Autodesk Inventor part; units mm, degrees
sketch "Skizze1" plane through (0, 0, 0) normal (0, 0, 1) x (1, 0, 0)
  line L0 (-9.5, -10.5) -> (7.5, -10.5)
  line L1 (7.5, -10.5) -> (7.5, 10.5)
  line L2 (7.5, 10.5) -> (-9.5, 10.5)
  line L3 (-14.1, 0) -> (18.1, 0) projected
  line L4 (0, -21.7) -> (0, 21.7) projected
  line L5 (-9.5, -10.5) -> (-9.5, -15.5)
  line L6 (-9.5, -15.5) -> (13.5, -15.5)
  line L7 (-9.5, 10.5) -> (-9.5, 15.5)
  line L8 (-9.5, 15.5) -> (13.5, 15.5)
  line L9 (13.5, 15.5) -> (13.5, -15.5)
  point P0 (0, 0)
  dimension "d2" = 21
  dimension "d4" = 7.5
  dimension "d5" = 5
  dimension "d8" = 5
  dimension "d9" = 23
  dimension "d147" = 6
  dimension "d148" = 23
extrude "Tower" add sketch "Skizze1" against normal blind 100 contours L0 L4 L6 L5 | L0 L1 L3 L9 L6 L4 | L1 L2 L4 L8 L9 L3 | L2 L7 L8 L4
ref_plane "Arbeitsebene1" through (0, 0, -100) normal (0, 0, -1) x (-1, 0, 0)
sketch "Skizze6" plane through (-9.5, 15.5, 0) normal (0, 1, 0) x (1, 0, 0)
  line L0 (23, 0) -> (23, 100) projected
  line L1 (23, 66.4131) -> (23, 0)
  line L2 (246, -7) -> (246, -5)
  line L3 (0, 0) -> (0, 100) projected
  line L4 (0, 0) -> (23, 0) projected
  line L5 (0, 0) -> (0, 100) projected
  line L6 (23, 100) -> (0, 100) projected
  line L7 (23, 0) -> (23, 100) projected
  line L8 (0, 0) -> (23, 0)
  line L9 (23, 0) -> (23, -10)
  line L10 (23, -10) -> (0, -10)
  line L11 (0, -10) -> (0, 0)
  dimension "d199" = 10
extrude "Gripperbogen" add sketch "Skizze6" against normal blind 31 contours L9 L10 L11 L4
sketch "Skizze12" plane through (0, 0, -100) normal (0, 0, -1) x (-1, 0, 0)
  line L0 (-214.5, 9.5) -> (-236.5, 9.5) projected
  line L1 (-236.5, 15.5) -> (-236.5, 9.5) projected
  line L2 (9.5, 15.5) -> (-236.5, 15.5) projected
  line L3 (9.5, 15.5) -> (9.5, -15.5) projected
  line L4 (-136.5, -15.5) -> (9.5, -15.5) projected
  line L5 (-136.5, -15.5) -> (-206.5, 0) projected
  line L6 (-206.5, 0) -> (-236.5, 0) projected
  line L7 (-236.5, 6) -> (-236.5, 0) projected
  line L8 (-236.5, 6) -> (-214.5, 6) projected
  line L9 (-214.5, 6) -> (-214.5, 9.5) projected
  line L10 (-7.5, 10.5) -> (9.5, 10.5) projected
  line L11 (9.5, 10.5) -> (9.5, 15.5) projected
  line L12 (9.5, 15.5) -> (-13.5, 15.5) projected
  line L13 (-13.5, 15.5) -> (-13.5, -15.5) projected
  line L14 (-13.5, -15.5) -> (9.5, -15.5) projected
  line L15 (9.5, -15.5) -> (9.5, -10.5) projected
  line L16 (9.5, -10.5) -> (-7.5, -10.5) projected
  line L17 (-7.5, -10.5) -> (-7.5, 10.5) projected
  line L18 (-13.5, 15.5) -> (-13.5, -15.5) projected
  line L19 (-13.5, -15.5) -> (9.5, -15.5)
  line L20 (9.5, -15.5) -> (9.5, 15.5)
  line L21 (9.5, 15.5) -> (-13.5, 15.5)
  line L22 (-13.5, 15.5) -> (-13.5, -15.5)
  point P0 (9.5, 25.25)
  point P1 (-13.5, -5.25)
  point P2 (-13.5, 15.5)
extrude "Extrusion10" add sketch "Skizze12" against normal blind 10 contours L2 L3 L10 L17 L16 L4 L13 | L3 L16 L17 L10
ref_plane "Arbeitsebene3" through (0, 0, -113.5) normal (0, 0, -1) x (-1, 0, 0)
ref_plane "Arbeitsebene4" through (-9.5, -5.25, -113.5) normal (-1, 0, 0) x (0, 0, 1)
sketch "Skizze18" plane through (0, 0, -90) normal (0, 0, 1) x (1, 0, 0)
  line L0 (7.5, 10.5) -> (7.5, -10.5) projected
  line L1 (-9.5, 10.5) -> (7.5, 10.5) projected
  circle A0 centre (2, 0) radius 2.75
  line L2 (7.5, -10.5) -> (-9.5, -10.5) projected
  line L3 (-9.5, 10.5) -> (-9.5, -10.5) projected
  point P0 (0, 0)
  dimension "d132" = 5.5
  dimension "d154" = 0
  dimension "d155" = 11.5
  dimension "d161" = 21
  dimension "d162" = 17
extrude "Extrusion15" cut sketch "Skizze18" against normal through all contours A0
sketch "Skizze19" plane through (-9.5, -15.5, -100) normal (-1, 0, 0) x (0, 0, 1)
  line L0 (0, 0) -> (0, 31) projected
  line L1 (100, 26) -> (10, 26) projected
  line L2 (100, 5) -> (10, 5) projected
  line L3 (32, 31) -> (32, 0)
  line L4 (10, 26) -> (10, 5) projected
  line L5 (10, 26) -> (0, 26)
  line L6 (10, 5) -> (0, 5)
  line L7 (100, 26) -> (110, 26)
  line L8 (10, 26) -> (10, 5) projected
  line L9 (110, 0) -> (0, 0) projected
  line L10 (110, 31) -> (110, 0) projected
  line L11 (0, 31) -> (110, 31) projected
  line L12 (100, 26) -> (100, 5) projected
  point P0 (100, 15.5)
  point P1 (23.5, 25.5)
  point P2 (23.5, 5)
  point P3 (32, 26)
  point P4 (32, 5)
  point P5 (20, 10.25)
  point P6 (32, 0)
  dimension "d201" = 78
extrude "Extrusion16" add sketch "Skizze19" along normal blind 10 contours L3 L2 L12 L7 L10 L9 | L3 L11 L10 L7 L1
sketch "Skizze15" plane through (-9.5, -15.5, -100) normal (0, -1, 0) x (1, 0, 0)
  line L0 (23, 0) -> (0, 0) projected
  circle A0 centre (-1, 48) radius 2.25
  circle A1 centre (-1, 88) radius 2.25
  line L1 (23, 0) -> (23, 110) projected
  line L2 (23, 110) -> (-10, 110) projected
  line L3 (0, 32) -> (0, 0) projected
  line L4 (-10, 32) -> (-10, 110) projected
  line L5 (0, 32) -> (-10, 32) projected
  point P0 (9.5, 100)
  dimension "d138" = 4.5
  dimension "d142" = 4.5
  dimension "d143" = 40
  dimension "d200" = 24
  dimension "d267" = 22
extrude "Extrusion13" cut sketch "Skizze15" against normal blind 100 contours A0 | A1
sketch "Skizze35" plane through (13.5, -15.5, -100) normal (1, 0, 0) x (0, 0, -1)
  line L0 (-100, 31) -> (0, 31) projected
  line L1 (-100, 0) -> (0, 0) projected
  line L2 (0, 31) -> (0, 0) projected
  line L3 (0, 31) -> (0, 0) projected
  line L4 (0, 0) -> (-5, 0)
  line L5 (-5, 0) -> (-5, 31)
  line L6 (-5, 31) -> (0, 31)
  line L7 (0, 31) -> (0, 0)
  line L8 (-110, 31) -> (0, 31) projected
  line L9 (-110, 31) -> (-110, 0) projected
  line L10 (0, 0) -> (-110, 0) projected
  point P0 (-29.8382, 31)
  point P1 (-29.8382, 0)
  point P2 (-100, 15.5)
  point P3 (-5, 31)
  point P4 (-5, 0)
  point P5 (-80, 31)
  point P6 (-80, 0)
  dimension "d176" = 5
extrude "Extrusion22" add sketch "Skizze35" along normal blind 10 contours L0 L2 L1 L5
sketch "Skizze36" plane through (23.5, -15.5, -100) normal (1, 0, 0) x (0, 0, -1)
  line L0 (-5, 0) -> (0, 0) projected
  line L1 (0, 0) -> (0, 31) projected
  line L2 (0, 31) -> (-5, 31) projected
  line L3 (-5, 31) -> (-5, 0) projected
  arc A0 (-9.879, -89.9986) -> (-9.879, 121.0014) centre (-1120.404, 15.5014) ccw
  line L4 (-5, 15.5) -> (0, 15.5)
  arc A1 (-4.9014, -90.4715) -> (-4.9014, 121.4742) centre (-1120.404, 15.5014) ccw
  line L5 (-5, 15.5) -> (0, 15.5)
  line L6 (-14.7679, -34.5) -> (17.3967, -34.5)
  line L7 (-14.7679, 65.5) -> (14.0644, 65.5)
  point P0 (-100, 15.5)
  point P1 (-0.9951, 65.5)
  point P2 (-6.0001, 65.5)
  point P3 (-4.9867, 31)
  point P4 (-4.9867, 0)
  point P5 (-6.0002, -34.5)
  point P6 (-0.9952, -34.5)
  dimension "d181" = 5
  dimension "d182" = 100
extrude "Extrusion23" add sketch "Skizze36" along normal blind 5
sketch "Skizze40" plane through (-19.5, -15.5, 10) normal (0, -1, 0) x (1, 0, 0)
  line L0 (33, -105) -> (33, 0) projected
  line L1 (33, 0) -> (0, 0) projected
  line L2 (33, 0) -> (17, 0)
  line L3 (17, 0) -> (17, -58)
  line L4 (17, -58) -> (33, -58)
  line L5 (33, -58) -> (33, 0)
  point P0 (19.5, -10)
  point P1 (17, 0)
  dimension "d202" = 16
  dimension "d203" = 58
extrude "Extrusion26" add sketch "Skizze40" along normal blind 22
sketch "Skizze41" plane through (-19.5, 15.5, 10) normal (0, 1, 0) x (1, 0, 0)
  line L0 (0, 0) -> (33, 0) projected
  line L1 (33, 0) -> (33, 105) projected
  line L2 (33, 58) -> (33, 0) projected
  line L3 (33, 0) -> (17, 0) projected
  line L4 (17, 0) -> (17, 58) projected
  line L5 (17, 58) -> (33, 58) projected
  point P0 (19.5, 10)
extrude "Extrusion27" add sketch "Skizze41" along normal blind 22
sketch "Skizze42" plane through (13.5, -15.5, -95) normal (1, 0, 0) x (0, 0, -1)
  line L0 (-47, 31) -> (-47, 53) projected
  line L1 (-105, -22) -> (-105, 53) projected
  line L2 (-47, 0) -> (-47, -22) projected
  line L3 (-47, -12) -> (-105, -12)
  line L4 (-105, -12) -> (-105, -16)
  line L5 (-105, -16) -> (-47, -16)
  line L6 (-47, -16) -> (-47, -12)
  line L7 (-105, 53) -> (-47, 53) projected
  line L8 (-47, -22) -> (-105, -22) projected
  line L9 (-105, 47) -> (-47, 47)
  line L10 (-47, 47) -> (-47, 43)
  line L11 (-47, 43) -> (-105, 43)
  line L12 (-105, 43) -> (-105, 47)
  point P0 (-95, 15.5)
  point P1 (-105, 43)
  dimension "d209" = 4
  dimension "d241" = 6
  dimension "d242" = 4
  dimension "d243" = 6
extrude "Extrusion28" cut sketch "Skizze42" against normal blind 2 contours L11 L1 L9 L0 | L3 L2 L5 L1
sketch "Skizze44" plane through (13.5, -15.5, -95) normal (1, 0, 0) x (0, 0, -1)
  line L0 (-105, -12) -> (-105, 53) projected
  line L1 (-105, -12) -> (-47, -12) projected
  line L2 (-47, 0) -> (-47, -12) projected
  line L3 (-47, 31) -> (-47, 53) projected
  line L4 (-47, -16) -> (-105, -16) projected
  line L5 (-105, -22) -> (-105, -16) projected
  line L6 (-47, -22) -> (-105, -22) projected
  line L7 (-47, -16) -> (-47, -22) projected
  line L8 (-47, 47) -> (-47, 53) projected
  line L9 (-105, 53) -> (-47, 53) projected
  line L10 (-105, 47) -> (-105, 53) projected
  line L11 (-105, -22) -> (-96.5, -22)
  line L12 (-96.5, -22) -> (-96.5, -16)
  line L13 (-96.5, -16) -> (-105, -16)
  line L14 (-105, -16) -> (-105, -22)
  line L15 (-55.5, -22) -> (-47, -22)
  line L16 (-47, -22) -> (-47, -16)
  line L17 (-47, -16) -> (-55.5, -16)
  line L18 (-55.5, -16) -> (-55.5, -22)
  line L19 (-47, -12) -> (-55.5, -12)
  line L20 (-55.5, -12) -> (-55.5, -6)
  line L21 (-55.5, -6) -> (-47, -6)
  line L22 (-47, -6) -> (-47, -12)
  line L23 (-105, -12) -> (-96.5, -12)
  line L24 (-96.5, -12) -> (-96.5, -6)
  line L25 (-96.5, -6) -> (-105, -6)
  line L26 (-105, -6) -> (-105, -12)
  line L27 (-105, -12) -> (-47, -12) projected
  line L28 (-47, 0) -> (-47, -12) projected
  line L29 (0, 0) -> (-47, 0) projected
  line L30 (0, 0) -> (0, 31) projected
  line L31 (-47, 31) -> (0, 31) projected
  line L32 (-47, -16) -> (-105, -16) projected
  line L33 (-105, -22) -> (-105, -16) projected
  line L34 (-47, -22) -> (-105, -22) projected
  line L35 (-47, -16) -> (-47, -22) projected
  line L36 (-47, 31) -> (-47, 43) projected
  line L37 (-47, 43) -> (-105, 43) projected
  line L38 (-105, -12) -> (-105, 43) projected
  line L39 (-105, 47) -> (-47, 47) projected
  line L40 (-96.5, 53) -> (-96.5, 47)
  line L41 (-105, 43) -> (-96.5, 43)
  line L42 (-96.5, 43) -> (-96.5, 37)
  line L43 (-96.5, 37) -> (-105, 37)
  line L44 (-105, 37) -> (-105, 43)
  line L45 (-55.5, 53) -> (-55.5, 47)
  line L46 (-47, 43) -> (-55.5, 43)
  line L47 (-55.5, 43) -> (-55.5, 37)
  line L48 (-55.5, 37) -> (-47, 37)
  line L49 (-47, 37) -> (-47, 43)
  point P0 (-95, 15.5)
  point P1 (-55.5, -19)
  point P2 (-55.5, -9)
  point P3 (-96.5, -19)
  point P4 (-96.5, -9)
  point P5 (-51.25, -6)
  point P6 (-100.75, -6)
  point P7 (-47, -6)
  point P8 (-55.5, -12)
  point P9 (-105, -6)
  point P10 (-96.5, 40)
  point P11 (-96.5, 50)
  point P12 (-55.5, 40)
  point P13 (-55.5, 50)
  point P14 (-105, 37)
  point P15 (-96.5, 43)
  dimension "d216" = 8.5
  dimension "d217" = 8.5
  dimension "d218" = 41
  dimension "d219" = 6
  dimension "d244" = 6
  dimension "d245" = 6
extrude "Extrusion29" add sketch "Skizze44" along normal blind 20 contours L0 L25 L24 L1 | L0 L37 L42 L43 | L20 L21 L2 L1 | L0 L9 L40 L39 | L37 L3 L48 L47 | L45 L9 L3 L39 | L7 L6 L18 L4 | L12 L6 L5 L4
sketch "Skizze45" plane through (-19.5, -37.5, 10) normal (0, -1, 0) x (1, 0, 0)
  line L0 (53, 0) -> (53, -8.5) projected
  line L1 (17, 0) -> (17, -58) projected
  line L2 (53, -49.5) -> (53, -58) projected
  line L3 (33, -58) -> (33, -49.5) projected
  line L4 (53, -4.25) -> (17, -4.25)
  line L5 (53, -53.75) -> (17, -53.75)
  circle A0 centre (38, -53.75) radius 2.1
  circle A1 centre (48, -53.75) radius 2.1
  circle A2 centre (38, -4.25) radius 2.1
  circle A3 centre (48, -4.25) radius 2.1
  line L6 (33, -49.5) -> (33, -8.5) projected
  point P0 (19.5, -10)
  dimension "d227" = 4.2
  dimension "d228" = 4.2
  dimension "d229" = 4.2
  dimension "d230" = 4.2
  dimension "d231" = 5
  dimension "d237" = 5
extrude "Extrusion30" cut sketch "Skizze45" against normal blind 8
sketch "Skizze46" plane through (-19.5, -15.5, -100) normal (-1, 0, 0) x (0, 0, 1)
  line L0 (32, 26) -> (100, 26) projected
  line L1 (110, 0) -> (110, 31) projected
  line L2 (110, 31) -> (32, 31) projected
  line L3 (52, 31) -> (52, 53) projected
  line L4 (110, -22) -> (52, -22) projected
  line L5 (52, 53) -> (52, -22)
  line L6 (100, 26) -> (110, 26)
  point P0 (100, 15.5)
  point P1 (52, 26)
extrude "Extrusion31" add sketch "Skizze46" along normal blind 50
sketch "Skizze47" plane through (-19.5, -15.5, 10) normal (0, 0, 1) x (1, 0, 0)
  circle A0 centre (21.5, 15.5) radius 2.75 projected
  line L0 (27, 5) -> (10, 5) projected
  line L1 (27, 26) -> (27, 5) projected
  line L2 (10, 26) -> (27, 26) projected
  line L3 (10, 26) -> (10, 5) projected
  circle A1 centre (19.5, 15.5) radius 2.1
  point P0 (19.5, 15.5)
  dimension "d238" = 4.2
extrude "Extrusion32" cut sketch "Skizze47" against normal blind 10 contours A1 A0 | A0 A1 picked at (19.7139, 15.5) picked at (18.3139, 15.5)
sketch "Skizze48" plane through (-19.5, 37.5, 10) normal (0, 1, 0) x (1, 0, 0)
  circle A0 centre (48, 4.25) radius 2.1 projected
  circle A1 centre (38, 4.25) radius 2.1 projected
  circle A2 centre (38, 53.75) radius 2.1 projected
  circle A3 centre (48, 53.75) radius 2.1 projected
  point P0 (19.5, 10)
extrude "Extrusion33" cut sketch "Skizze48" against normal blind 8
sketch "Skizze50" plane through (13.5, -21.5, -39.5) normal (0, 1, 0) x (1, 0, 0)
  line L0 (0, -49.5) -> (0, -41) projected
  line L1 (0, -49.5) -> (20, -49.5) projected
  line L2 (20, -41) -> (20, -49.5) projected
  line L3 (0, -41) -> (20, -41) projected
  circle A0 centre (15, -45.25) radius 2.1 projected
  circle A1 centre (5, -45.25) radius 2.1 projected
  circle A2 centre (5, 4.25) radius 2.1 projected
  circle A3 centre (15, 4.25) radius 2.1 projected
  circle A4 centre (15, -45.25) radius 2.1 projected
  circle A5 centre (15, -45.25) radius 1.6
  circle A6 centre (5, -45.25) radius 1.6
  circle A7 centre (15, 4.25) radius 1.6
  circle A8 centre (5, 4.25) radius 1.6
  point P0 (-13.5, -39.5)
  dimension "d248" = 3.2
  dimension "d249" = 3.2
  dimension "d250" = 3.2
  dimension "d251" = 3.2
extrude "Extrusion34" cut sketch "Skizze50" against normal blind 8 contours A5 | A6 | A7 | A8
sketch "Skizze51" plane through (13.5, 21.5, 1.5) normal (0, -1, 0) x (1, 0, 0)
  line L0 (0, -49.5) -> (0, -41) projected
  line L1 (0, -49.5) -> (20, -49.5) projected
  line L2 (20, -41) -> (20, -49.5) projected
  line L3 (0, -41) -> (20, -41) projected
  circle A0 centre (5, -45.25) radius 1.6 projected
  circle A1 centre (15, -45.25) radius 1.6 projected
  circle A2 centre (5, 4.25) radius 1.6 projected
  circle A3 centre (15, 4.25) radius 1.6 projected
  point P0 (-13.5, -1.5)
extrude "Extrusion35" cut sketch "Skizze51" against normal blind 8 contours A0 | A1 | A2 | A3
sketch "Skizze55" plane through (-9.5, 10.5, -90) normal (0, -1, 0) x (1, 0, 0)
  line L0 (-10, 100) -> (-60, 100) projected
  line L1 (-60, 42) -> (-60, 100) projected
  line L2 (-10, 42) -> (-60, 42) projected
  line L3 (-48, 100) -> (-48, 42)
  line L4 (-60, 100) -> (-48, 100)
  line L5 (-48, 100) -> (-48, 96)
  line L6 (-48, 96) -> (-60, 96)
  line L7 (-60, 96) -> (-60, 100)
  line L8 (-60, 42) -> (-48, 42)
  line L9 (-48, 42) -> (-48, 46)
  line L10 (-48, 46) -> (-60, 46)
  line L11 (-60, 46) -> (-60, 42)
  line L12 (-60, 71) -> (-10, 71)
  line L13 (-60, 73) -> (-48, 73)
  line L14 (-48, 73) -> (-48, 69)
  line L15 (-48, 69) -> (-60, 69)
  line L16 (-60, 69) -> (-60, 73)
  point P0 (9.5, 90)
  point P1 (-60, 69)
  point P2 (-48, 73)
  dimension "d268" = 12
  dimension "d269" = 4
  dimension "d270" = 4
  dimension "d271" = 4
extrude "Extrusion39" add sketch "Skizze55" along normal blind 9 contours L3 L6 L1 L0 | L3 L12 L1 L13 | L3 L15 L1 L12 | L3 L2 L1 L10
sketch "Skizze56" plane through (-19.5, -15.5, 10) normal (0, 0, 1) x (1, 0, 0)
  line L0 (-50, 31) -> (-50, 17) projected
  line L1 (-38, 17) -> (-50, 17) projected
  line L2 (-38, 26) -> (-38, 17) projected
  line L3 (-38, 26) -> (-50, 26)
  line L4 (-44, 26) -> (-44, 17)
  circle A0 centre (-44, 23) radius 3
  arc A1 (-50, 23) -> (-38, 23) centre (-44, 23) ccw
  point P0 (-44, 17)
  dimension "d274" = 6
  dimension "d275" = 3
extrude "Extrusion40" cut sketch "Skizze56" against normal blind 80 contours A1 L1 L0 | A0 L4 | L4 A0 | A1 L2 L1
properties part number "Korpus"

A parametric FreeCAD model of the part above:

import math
import FreeCAD as App
import Part
import Sketcher

V = App.Vector
Q = App.Units.Quantity

doc = App.newDocument("Part")
body = doc.addObject("PartDesign::Body", "Body")

# Sketch on XY plane
sketch1 = doc.addObject("Sketcher::SketchObject", "Sketch")
body.addObject(sketch1)
sketch1.AttachmentSupport = (doc.XY_Plane, [""])
sketch1.MapMode = "FlatFace"
sketch1.addGeometry([
    Part.LineSegment(V(-10, -10, 0), V(-10, -16, 0)),  # 0
    Part.LineSegment(V(-10, -16, 0), V(14, -16, 0)),  # 1
    Part.LineSegment(V(14, -16, 0), V(14, 16, 0)),  # 2
    Part.LineSegment(V(14, 16, 0), V(-10, 16, 0)),  # 3
    Part.LineSegment(V(-10, 16, 0), V(-10, 10, 0)),  # 4
    Part.LineSegment(V(-10, 10, 0), V(8, 10, 0)),  # 5
    Part.LineSegment(V(8, 10, 0), V(8, -10, 0)),  # 6
    Part.LineSegment(V(8, -10, 0), V(-10, -10, 0)),  # 7
], False)
sketch1.addConstraint([
    Sketcher.Constraint("Coincident", 0, 2, 1, 1),
    Sketcher.Constraint("Coincident", 1, 2, 2, 1),
    Sketcher.Constraint("Coincident", 2, 2, 3, 1),
    Sketcher.Constraint("Coincident", 3, 2, 4, 1),
    Sketcher.Constraint("Coincident", 4, 2, 5, 1),
    Sketcher.Constraint("Coincident", 5, 2, 6, 1),
    Sketcher.Constraint("Coincident", 6, 2, 7, 1),
    Sketcher.Constraint("Coincident", 7, 2, 0, 1),
    Sketcher.Constraint("Vertical", 0),
    Sketcher.Constraint("Horizontal", 1),
    Sketcher.Constraint("Vertical", 2),
    Sketcher.Constraint("Horizontal", 3),
    Sketcher.Constraint("Vertical", 4),
    Sketcher.Constraint("Horizontal", 5),
    Sketcher.Constraint("Vertical", 6),
    Sketcher.Constraint("Horizontal", 7),
    Sketcher.Constraint("Symmetric", 0, 2, 3, 2, -1),
    Sketcher.Constraint("Equal", 0, 4),
    Sketcher.Constraint("DistanceX", 1, 1, 1, 2, Q("23 mm")),
    Sketcher.Constraint("DistanceY", 0, 2, 0, 1, Q("5 mm")),
    Sketcher.Constraint("DistanceY", 6, 2, 6, 1, Q("21 mm")),
    Sketcher.Constraint("DistanceX", 5, 2, 2, 2, Q("6 mm")),
    Sketcher.Constraint("DistanceX", -1, 1, 5, 2, Q("7.5 mm")),
])
pad1 = doc.addObject("PartDesign::Pad", "Pad")
body.addObject(pad1)
pad1.Profile = sketch1
pad1.Length = 100
pad1.Reversed = True

# Sketch on XZ plane
sketch2 = doc.addObject("Sketcher::SketchObject", "Sketch001")
body.addObject(sketch2)
sketch2.AttachmentSupport = (doc.XZ_Plane, [""])
sketch2.MapMode = "FlatFace"
sketch2.AttachmentOffset = App.Placement(V(0, 0, -15.5), App.Rotation())
sketch2.addGeometry([
    Part.LineSegment(V(14, 10, 0), V(14, 0, 0)),
    Part.LineSegment(V(14, 0, 0), V(-10, 0, 0)),
    Part.LineSegment(V(-10, 0, 0), V(-10, 10, 0)),
    Part.LineSegment(V(-10, 10, 0), V(14, 10, 0)),
], False)
sketch2.addConstraint([
    Sketcher.Constraint("Coincident", 0, 2, 1, 1),
    Sketcher.Constraint("Coincident", 1, 2, 2, 1),
    Sketcher.Constraint("Coincident", 2, 2, 3, 1),
    Sketcher.Constraint("Coincident", 3, 2, 0, 1),
    Sketcher.Constraint("Vertical", 0),
    Sketcher.Constraint("Horizontal", 1),
    Sketcher.Constraint("Vertical", 2),
    Sketcher.Constraint("Horizontal", 3),
    Sketcher.Constraint("PointOnObject", 0, 2, -1),
    Sketcher.Constraint("DistanceY", 0, 2, 0, 1, Q("10 mm")),
    Sketcher.Constraint("DistanceX", 1, 2, 1, 1, Q("23 mm")),
    Sketcher.Constraint("DistanceX", -1, 1, 0, 2, Q("13.5 mm")),
])
pad2 = doc.addObject("PartDesign::Pad", "Pad001")
body.addObject(pad2)
pad2.Profile = sketch2
pad2.Length = 31

# Sketch on XY plane
sketch3 = doc.addObject("Sketcher::SketchObject", "Sketch002")
body.addObject(sketch3)
sketch3.AttachmentSupport = (doc.XY_Plane, [""])
sketch3.MapMode = "FlatFace"
sketch3.AttachmentOffset = App.Placement(V(0, 0, -100), App.Rotation())
sketch3.addGeometry([
    Part.LineSegment(V(-10, 16, 0), V(14, 16, 0)),
    Part.LineSegment(V(14, 16, 0), V(14, -16, 0)),
    Part.LineSegment(V(14, -16, 0), V(-10, -16, 0)),
    Part.LineSegment(V(-10, -16, 0), V(-10, 16, 0)),
], False)
sketch3.addConstraint([
    Sketcher.Constraint("Coincident", 0, 2, 1, 1),
    Sketcher.Constraint("Coincident", 1, 2, 2, 1),
    Sketcher.Constraint("Coincident", 2, 2, 3, 1),
    Sketcher.Constraint("Coincident", 3, 2, 0, 1),
    Sketcher.Constraint("Horizontal", 0),
    Sketcher.Constraint("Vertical", 1),
    Sketcher.Constraint("Horizontal", 2),
    Sketcher.Constraint("Vertical", 3),
    Sketcher.Constraint("DistanceX", 0, 1, 0, 2, Q("23 mm")),
    Sketcher.Constraint("DistanceY", 1, 2, 1, 1, Q("31 mm")),
    Sketcher.Constraint("DistanceX", -1, 1, 0, 2, Q("13.5 mm")),
    Sketcher.Constraint("DistanceY", -1, 1, 0, 2, Q("15.5 mm")),
])
pad3 = doc.addObject("PartDesign::Pad", "Pad002")
body.addObject(pad3)
pad3.Profile = sketch3
pad3.Length = 10

# Sketch on XY plane
sketch4 = doc.addObject("Sketcher::SketchObject", "Sketch003")
body.addObject(sketch4)
sketch4.AttachmentSupport = (doc.XY_Plane, [""])
sketch4.MapMode = "FlatFace"
sketch4.AttachmentOffset = App.Placement(V(0, 0, -90), App.Rotation())
sketch4.addGeometry(Part.Circle(V(2, 0, 0), V(0, 0, 1), 2.8), False)
sketch4.addConstraint([
    Sketcher.Constraint("PointOnObject", 0, 3, -1),
    Sketcher.Constraint("Diameter", 0, Q("5.5 mm")),
    Sketcher.Constraint("DistanceX", -1, 1, 0, 3, Q("2 mm")),
])
pocket1 = doc.addObject("PartDesign::Pocket", "Pocket")
body.addObject(pocket1)
pocket1.Profile = sketch4
pocket1.Type = "ThroughAll"

# Sketch on YZ plane
sketch5 = doc.addObject("Sketcher::SketchObject", "Sketch004")
body.addObject(sketch5)
sketch5.AttachmentSupport = (doc.YZ_Plane, [""])
sketch5.MapMode = "FlatFace"
sketch5.AttachmentOffset = App.Placement(V(0, 0, -9.5), App.Rotation())
sketch5.addGeometry([
    Part.LineSegment(V(-10, -68, 0), V(-16, -68, 0)),  # 0
    Part.LineSegment(V(-16, -68, 0), V(-16, 10, 0)),  # 1
    Part.LineSegment(V(-16, 10, 0), V(16, 10, 0)),  # 2
    Part.LineSegment(V(16, 10, 0), V(16, -68, 0)),  # 3
    Part.LineSegment(V(16, -68, 0), V(10, -68, 0)),  # 4
    Part.LineSegment(V(10, -68, 0), V(10, 0, 0)),  # 5
    Part.LineSegment(V(10, 0, 0), V(-10, 0, 0)),  # 6
    Part.LineSegment(V(-10, 0, 0), V(-10, -68, 0)),  # 7
], False)
sketch5.addConstraint([
    Sketcher.Constraint("Coincident", 0, 2, 1, 1),
    Sketcher.Constraint("Coincident", 1, 2, 2, 1),
    Sketcher.Constraint("Coincident", 2, 2, 3, 1),
    Sketcher.Constraint("Coincident", 3, 2, 4, 1),
    Sketcher.Constraint("Coincident", 4, 2, 5, 1),
    Sketcher.Constraint("Coincident", 5, 2, 6, 1),
    Sketcher.Constraint("Coincident", 6, 2, 7, 1),
    Sketcher.Constraint("Coincident", 7, 2, 0, 1),
    Sketcher.Constraint("Horizontal", 0),
    Sketcher.Constraint("Vertical", 1),
    Sketcher.Constraint("Horizontal", 2),
    Sketcher.Constraint("Vertical", 3),
    Sketcher.Constraint("Horizontal", 4),
    Sketcher.Constraint("Vertical", 5),
    Sketcher.Constraint("Horizontal", 6),
    Sketcher.Constraint("Vertical", 7),
    Sketcher.Constraint("Symmetric", 5, 2, 6, 2, -1, 1),
    Sketcher.Constraint("Symmetric", 0, 2, 3, 2, -2),
    Sketcher.Constraint("DistanceY", 1, 1, 1, 2, Q("78 mm")),
    Sketcher.Constraint("DistanceX", 0, 2, 0, 1, Q("5 mm")),
    Sketcher.Constraint("DistanceX", 2, 1, 2, 2, Q("31 mm")),
    Sketcher.Constraint("DistanceY", 5, 1, 5, 2, Q("68 mm")),
])
pad4 = doc.addObject("PartDesign::Pad", "Pad003")
body.addObject(pad4)
pad4.Profile = sketch5
pad4.Length = 10
pad4.Reversed = True

# Sketch on XZ plane
sketch6 = doc.addObject("Sketcher::SketchObject", "Sketch005")
body.addObject(sketch6)
sketch6.AttachmentSupport = (doc.XZ_Plane, [""])
sketch6.MapMode = "FlatFace"
sketch6.AttachmentOffset = App.Placement(V(0, 0, 15.5), App.Rotation())
sketch6.addGeometry([
    Part.Circle(V(-10.5, -52, 0), V(0, 0, 1), 2.2),
    Part.Circle(V(-10.5, -12, 0), V(0, 0, 1), 2.2),
], False)
sketch6.addConstraint([
    Sketcher.Constraint("Equal", 0, 1),
    Sketcher.Constraint("Vertical", 0, 3, 1, 3),
    Sketcher.Constraint("Diameter", 0, Q("4.5 mm")),
    Sketcher.Constraint("DistanceY", 0, 3, 1, 3, Q("40 mm")),
    Sketcher.Constraint("DistanceY", 0, 3, -1, 1, Q("52 mm")),
    Sketcher.Constraint("DistanceX", 0, 3, -1, 1, Q("10.5 mm")),
])
pocket2 = doc.addObject("PartDesign::Pocket", "Pocket001")
body.addObject(pocket2)
pocket2.Profile = sketch6
pocket2.Length = 100

# Sketch on YZ plane
sketch7 = doc.addObject("Sketcher::SketchObject", "Sketch006")
body.addObject(sketch7)
sketch7.AttachmentSupport = (doc.YZ_Plane, [""])
sketch7.MapMode = "FlatFace"
sketch7.AttachmentOffset = App.Placement(V(0, 0, 13.5), App.Rotation())
sketch7.addGeometry([
    Part.LineSegment(V(16, -100, 0), V(16, -95, 0)),
    Part.LineSegment(V(16, -95, 0), V(-16, -95, 0)),
    Part.LineSegment(V(-16, -95, 0), V(-16, -100, 0)),
    Part.LineSegment(V(-16, -100, 0), V(16, -100, 0)),
], False)
sketch7.addConstraint([
    Sketcher.Constraint("Coincident", 0, 2, 1, 1),
    Sketcher.Constraint("Coincident", 1, 2, 2, 1),
    Sketcher.Constraint("Coincident", 2, 2, 3, 1),
    Sketcher.Constraint("Coincident", 3, 2, 0, 1),
    Sketcher.Constraint("Vertical", 0),
    Sketcher.Constraint("Horizontal", 1),
    Sketcher.Constraint("Vertical", 2),
    Sketcher.Constraint("Horizontal", 3),
    Sketcher.Constraint("DistanceY", 0, 1, 0, 2, Q("5 mm")),
    Sketcher.Constraint("DistanceX", 1, 2, 1, 1, Q("31 mm")),
    Sketcher.Constraint("DistanceY", 0, 2, -1, 1, Q("95 mm")),
    Sketcher.Constraint("DistanceX", -1, 1, 0, 2, Q("15.5 mm")),
])
pad5 = doc.addObject("PartDesign::Pad", "Pad004")
body.addObject(pad5)
pad5.Profile = sketch7
pad5.Length = 10

# Sketch on YZ plane
sketch8 = doc.addObject("Sketcher::SketchObject", "Sketch007")
body.addObject(sketch8)
sketch8.AttachmentSupport = (doc.YZ_Plane, [""])
sketch8.MapMode = "FlatFace"
sketch8.AttachmentOffset = App.Placement(V(0, 0, 23.5), App.Rotation())
sketch8.addGeometry([
    Part.LineSegment(V(-15.5, -95, 0), V(-15.5, -95.013, 0)),  # 0
    Part.ArcOfCircle(Part.Circle(V(0.001, 1020.404, 0), V(0, 0, 1), 1115.525), math.radians(-92.57), math.radians(-90.8)),  # 1
    Part.LineSegment(V(-50, -94, 0), V(-50, -99.005, 0)),  # 2
    Part.ArcOfCircle(Part.Circle(V(0.001, 1020.403, 0), V(0, 0, 1), 1120.524), math.radians(-92.56), math.radians(-87.44)),  # 3
    Part.LineSegment(V(50, -99.005, 0), V(50, -94, 0)),  # 4
    Part.ArcOfCircle(Part.Circle(V(0.001, 1020.404, 0), V(0, 0, 1), 1115.525), math.radians(-89.2), math.radians(-87.43)),  # 5
    Part.LineSegment(V(15.5, -95.013, 0), V(15.5, -95, 0)),  # 6
    Part.LineSegment(V(15.5, -95, 0), V(-15.5, -95, 0)),  # 7
], False)
sketch8.addConstraint([
    Sketcher.Constraint("Coincident", 0, 2, 1, 2),
    Sketcher.Constraint("Coincident", 1, 1, 2, 1),
    Sketcher.Constraint("Coincident", 2, 2, 3, 1),
    Sketcher.Constraint("Coincident", 3, 2, 4, 1),
    Sketcher.Constraint("Coincident", 4, 2, 5, 2),
    Sketcher.Constraint("Coincident", 5, 1, 6, 1),
    Sketcher.Constraint("Coincident", 6, 2, 7, 1),
    Sketcher.Constraint("Coincident", 7, 2, 0, 1),
    Sketcher.Constraint("Vertical", 0),
    Sketcher.Constraint("Vertical", 2),
    Sketcher.Constraint("Vertical", 4),
    Sketcher.Constraint("Vertical", 6),
    Sketcher.Constraint("Horizontal", 7),
    Sketcher.Constraint("Coincident", 5, 3, 1, 3),
    Sketcher.Constraint("Equal", 1, 5),
    Sketcher.Constraint("Vertical", 1, 3, 3, 3),
    Sketcher.Constraint("Equal", 0, 6),
    Sketcher.Constraint("DistanceX", 2, 2, 4, 2, Q("100 mm")),
    Sketcher.Constraint("DistanceX", 7, 2, 7, 1, Q("31 mm")),
    Sketcher.Constraint("DistanceX", 2, 2, -1, 1, Q("50 mm")),
    Sketcher.Constraint("DistanceY", 4, 2, -1, 1, Q("94 mm")),
    Sketcher.Constraint("DistanceY", 6, 2, -1, 1, Q("95 mm")),
    Sketcher.Constraint("Radius", 1, Q("1115.525 mm")),
    Sketcher.Constraint("Radius", 3, Q("1120.524 mm")),
    Sketcher.Constraint("DistanceX", 0, 2, -1, 1, Q("15.5 mm")),
    Sketcher.Constraint("DistanceY", 2, 2, 2, 1, Q("5.005 mm")),
])
pad6 = doc.addObject("PartDesign::Pad", "Pad005")
body.addObject(pad6)
pad6.Profile = sketch8
pad6.Length = 5

# Sketch on XZ plane
sketch9 = doc.addObject("Sketcher::SketchObject", "Sketch008")
body.addObject(sketch9)
sketch9.AttachmentSupport = (doc.XZ_Plane, [""])
sketch9.MapMode = "FlatFace"
sketch9.AttachmentOffset = App.Placement(V(0, 0, 15.5), App.Rotation())
sketch9.addGeometry([
    Part.LineSegment(V(-2, -48, 0), V(14, -48, 0)),
    Part.LineSegment(V(14, -48, 0), V(14, 10, 0)),
    Part.LineSegment(V(14, 10, 0), V(-2, 10, 0)),
    Part.LineSegment(V(-2, 10, 0), V(-2, -48, 0)),
], False)
sketch9.addConstraint([
    Sketcher.Constraint("Coincident", 0, 2, 1, 1),
    Sketcher.Constraint("Coincident", 1, 2, 2, 1),
    Sketcher.Constraint("Coincident", 2, 2, 3, 1),
    Sketcher.Constraint("Coincident", 3, 2, 0, 1),
    Sketcher.Constraint("Horizontal", 0),
    Sketcher.Constraint("Vertical", 1),
    Sketcher.Constraint("Horizontal", 2),
    Sketcher.Constraint("Vertical", 3),
    Sketcher.Constraint("DistanceX", 0, 1, 0, 2, Q("16 mm")),
    Sketcher.Constraint("DistanceY", 1, 1, 1, 2, Q("58 mm")),
    Sketcher.Constraint("DistanceY", 0, 2, -1, 1, Q("48 mm")),
    Sketcher.Constraint("DistanceX", -1, 1, 0, 2, Q("13.5 mm")),
])
pad7 = doc.addObject("PartDesign::Pad", "Pad006")
body.addObject(pad7)
pad7.Profile = sketch9
pad7.Length = 22

# Sketch on XZ plane
sketch10 = doc.addObject("Sketcher::SketchObject", "Sketch009")
body.addObject(sketch10)
sketch10.AttachmentSupport = (doc.XZ_Plane, [""])
sketch10.MapMode = "FlatFace"
sketch10.AttachmentOffset = App.Placement(V(0, 0, -15.5), App.Rotation())
sketch10.addGeometry([
    Part.LineSegment(V(-2, -48, 0), V(-2, 10, 0)),
    Part.LineSegment(V(-2, 10, 0), V(14, 10, 0)),
    Part.LineSegment(V(14, 10, 0), V(14, -48, 0)),
    Part.LineSegment(V(14, -48, 0), V(-2, -48, 0)),
], False)
sketch10.addConstraint([
    Sketcher.Constraint("Coincident", 0, 2, 1, 1),
    Sketcher.Constraint("Coincident", 1, 2, 2, 1),
    Sketcher.Constraint("Coincident", 2, 2, 3, 1),
    Sketcher.Constraint("Coincident", 3, 2, 0, 1),
    Sketcher.Constraint("Vertical", 0),
    Sketcher.Constraint("Horizontal", 1),
    Sketcher.Constraint("Vertical", 2),
    Sketcher.Constraint("Horizontal", 3),
    Sketcher.Constraint("DistanceX", 1, 1, 1, 2, Q("16 mm")),
    Sketcher.Constraint("DistanceY", 0, 1, 0, 2, Q("58 mm")),
    Sketcher.Constraint("DistanceY", -1, 1, 0, 2, Q("10 mm")),
    Sketcher.Constraint("DistanceX", 0, 2, -1, 1, Q("2.5 mm")),
])
pad8 = doc.addObject("PartDesign::Pad", "Pad007")
body.addObject(pad8)
pad8.Profile = sketch10
pad8.Length = 22
pad8.Reversed = True

# Sketch on YZ plane
sketch11 = doc.addObject("Sketcher::SketchObject", "Sketch010")
body.addObject(sketch11)
sketch11.AttachmentSupport = (doc.YZ_Plane, [""])
sketch11.MapMode = "FlatFace"
sketch11.AttachmentOffset = App.Placement(V(0, 0, 13.5), App.Rotation())
sketch11.addGeometry([
    Part.LineSegment(V(27.5, 10, 0), V(27.5, -48, 0)),  # 0
    Part.LineSegment(V(27.5, -48, 0), V(31.5, -48, 0)),  # 1
    Part.LineSegment(V(31.5, -48, 0), V(31.5, 10, 0)),  # 2
    Part.LineSegment(V(31.5, 10, 0), V(27.5, 10, 0)),  # 3
    Part.LineSegment(V(-27.5, -48, 0), V(-27.5, 10, 0)),  # 4
    Part.LineSegment(V(-27.5, 10, 0), V(-31.5, 10, 0)),  # 5
    Part.LineSegment(V(-31.5, 10, 0), V(-31.5, -48, 0)),  # 6
    Part.LineSegment(V(-31.5, -48, 0), V(-27.5, -48, 0)),  # 7
], False)
sketch11.addConstraint([
    Sketcher.Constraint("Coincident", 0, 2, 1, 1),
    Sketcher.Constraint("Coincident", 1, 2, 2, 1),
    Sketcher.Constraint("Coincident", 2, 2, 3, 1),
    Sketcher.Constraint("Coincident", 3, 2, 0, 1),
    Sketcher.Constraint("Coincident", 4, 2, 5, 1),
    Sketcher.Constraint("Coincident", 5, 2, 6, 1),
    Sketcher.Constraint("Coincident", 6, 2, 7, 1),
    Sketcher.Constraint("Coincident", 7, 2, 4, 1),
    Sketcher.Constraint("Vertical", 0),
    Sketcher.Constraint("Horizontal", 1),
    Sketcher.Constraint("Vertical", 2),
    Sketcher.Constraint("Horizontal", 3),
    Sketcher.Constraint("Vertical", 4),
    Sketcher.Constraint("Horizontal", 5),
    Sketcher.Constraint("Vertical", 6),
    Sketcher.Constraint("Horizontal", 7),
    Sketcher.Constraint("Symmetric", 3, 2, 4, 2, -2),
    Sketcher.Constraint("Symmetric", 1, 2, 6, 2, -2),
    Sketcher.Constraint("DistanceX", 1, 1, 1, 2, Q("4 mm")),
    Sketcher.Constraint("DistanceY", 0, 2, 0, 1, Q("58 mm")),
    Sketcher.Constraint("DistanceY", 0, 2, -1, 1, Q("48 mm")),
    Sketcher.Constraint("DistanceX", 4, 2, 3, 2, Q("55 mm")),
])
pocket3 = doc.addObject("PartDesign::Pocket", "Pocket002")
body.addObject(pocket3)
pocket3.Profile = sketch11
pocket3.Length = 2

# Sketch on YZ plane
sketch12 = doc.addObject("Sketcher::SketchObject", "Sketch011")
body.addObject(sketch12)
sketch12.AttachmentSupport = (doc.YZ_Plane, [""])
sketch12.MapMode = "FlatFace"
sketch12.AttachmentOffset = App.Placement(V(0, 0, 13.5), App.Rotation())
sketch12.addGeometry([
    Part.LineSegment(V(-22, 10, 0), V(-28, 10, 0)),  # 0
    Part.LineSegment(V(-28, 10, 0), V(-28, 2, 0)),  # 1
    Part.LineSegment(V(-28, 2, 0), V(-22, 2, 0)),  # 2
    Part.LineSegment(V(-22, 2, 0), V(-22, 10, 0)),  # 3
    Part.LineSegment(V(28, 10, 0), V(22, 10, 0)),  # 4
    Part.LineSegment(V(22, 10, 0), V(22, 2, 0)),  # 5
    Part.LineSegment(V(22, 2, 0), V(28, 2, 0)),  # 6
    Part.LineSegment(V(28, 2, 0), V(28, 10, 0)),  # 7
    Part.LineSegment(V(-22, -40, 0), V(-28, -40, 0)),  # 8
    Part.LineSegment(V(-28, -40, 0), V(-28, -48, 0)),  # 9
    Part.LineSegment(V(-28, -48, 0), V(-22, -48, 0)),  # 10
    Part.LineSegment(V(-22, -48, 0), V(-22, -40, 0)),  # 11
    Part.LineSegment(V(38, 10, 0), V(32, 10, 0)),  # 12
    Part.LineSegment(V(32, 10, 0), V(32, 2, 0)),  # 13
    Part.LineSegment(V(32, 2, 0), V(38, 2, 0)),  # 14
    Part.LineSegment(V(38, 2, 0), V(38, 10, 0)),  # 15
    Part.LineSegment(V(28, -48, 0), V(28, -40, 0)),  # 16
    Part.LineSegment(V(28, -40, 0), V(22, -40, 0)),  # 17
    Part.LineSegment(V(22, -40, 0), V(22, -48, 0)),  # 18
    Part.LineSegment(V(22, -48, 0), V(28, -48, 0)),  # 19
    Part.LineSegment(V(38, -40, 0), V(32, -40, 0)),  # 20
    Part.LineSegment(V(32, -40, 0), V(32, -48, 0)),  # 21
    Part.LineSegment(V(32, -48, 0), V(38, -48, 0)),  # 22
    Part.LineSegment(V(38, -48, 0), V(38, -40, 0)),  # 23
    Part.LineSegment(V(-38, -48, 0), V(-32, -48, 0)),  # 24
    Part.LineSegment(V(-32, -48, 0), V(-32, -40, 0)),  # 25
    Part.LineSegment(V(-32, -40, 0), V(-38, -40, 0)),  # 26
    Part.LineSegment(V(-38, -40, 0), V(-38, -48, 0)),  # 27
    Part.LineSegment(V(-38, 2, 0), V(-32, 2, 0)),  # 28
    Part.LineSegment(V(-32, 2, 0), V(-32, 10, 0)),  # 29
    Part.LineSegment(V(-32, 10, 0), V(-38, 10, 0)),  # 30
    Part.LineSegment(V(-38, 10, 0), V(-38, 2, 0)),  # 31
], False)
sketch12.addConstraint([
    Sketcher.Constraint("Coincident", 0, 2, 1, 1),
    Sketcher.Constraint("Coincident", 1, 2, 2, 1),
    Sketcher.Constraint("Coincident", 2, 2, 3, 1),
    Sketcher.Constraint("Coincident", 3, 2, 0, 1),
    Sketcher.Constraint("Coincident", 4, 2, 5, 1),
    Sketcher.Constraint("Coincident", 5, 2, 6, 1),
    Sketcher.Constraint("Coincident", 6, 2, 7, 1),
    Sketcher.Constraint("Coincident", 7, 2, 4, 1),
    Sketcher.Constraint("Coincident", 8, 2, 9, 1),
    Sketcher.Constraint("Coincident", 9, 2, 10, 1),
    Sketcher.Constraint("Coincident", 10, 2, 11, 1),
    Sketcher.Constraint("Coincident", 11, 2, 8, 1),
    Sketcher.Constraint("Coincident", 12, 2, 13, 1),
    Sketcher.Constraint("Coincident", 13, 2, 14, 1),
    Sketcher.Constraint("Coincident", 14, 2, 15, 1),
    Sketcher.Constraint("Coincident", 15, 2, 12, 1),
    Sketcher.Constraint("Coincident", 16, 2, 17, 1),
    Sketcher.Constraint("Coincident", 17, 2, 18, 1),
    Sketcher.Constraint("Coincident", 18, 2, 19, 1),
    Sketcher.Constraint("Coincident", 19, 2, 16, 1),
    Sketcher.Constraint("Coincident", 20, 2, 21, 1),
    Sketcher.Constraint("Coincident", 21, 2, 22, 1),
    Sketcher.Constraint("Coincident", 22, 2, 23, 1),
    Sketcher.Constraint("Coincident", 23, 2, 20, 1),
    Sketcher.Constraint("Coincident", 24, 2, 25, 1),
    Sketcher.Constraint("Coincident", 25, 2, 26, 1),
    Sketcher.Constraint("Coincident", 26, 2, 27, 1),
    Sketcher.Constraint("Coincident", 27, 2, 24, 1),
    Sketcher.Constraint("Coincident", 28, 2, 29, 1),
    Sketcher.Constraint("Coincident", 29, 2, 30, 1),
    Sketcher.Constraint("Coincident", 30, 2, 31, 1),
    Sketcher.Constraint("Coincident", 31, 2, 28, 1),
    Sketcher.Constraint("Horizontal", 0),
    Sketcher.Constraint("Vertical", 1),
    Sketcher.Constraint("Horizontal", 2),
    Sketcher.Constraint("Vertical", 3),
    Sketcher.Constraint("Horizontal", 4),
    Sketcher.Constraint("Vertical", 5),
    Sketcher.Constraint("Horizontal", 6),
    Sketcher.Constraint("Vertical", 7),
    Sketcher.Constraint("Horizontal", 8),
    Sketcher.Constraint("Vertical", 9),
    Sketcher.Constraint("Horizontal", 10),
    Sketcher.Constraint("Vertical", 11),
    Sketcher.Constraint("Horizontal", 12),
    Sketcher.Constraint("Vertical", 13),
    Sketcher.Constraint("Horizontal", 14),
    Sketcher.Constraint("Vertical", 15),
    Sketcher.Constraint("Vertical", 16),
    Sketcher.Constraint("Horizontal", 17),
    Sketcher.Constraint("Vertical", 18),
    Sketcher.Constraint("Horizontal", 19),
    Sketcher.Constraint("Horizontal", 20),
    Sketcher.Constraint("Vertical", 21),
    Sketcher.Constraint("Horizontal", 22),
    Sketcher.Constraint("Vertical", 23),
    Sketcher.Constraint("Horizontal", 24),
    Sketcher.Constraint("Vertical", 25),
    Sketcher.Constraint("Horizontal", 26),
    Sketcher.Constraint("Vertical", 27),
    Sketcher.Constraint("Horizontal", 28),
    Sketcher.Constraint("Vertical", 29),
    Sketcher.Constraint("Horizontal", 30),
    Sketcher.Constraint("Vertical", 31),
    Sketcher.Constraint("Symmetric", 3, 2, 4, 2, -2),
    Sketcher.Constraint("Symmetric", 1, 2, 6, 2, -2),
    Sketcher.Constraint("Symmetric", 8, 2, 16, 2, -2),
    Sketcher.Constraint("Symmetric", 10, 2, 18, 2, -2),
    Sketcher.Constraint("Symmetric", 21, 2, 24, 2, -2),
    Sketcher.Constraint("Symmetric", 23, 2, 26, 2, -2),
    Sketcher.Constraint("Symmetric", 13, 2, 28, 2, -2),
    Sketcher.Constraint("Symmetric", 15, 2, 30, 2, -2),
    Sketcher.Constraint("Horizontal", 7, 2, 12, 2),
    Sketcher.Constraint("Horizontal", 6, 2, 13, 2),
    Sketcher.Constraint("Horizontal", 17, 2, 20, 2),
    Sketcher.Constraint("Horizontal", 19, 2, 21, 2),
    Sketcher.Constraint("Vertical", 1, 2, 8, 2),
    Sketcher.Constraint("Vertical", 3, 2, 10, 2),
    Sketcher.Constraint("Vertical", 13, 2, 20, 2),
    Sketcher.Constraint("Vertical", 15, 2, 22, 2),
    Sketcher.Constraint("Equal", 10, 12),
    Sketcher.Constraint("Equal", 7, 9),
    Sketcher.Constraint("DistanceX", 0, 2, 0, 1, Q("6 mm")),
    Sketcher.Constraint("DistanceY", 1, 2, 1, 1, Q("8.5 mm")),
    Sketcher.Constraint("DistanceY", 8, 2, 1, 2, Q("41 mm")),
    Sketcher.Constraint("DistanceY", -1, 1, 0, 2, Q("10 mm")),
    Sketcher.Constraint("DistanceX", 3, 2, 4, 2, Q("43 mm")),
    Sketcher.Constraint("DistanceX", 7, 2, 12, 2, Q("4 mm")),
])
pad9 = doc.addObject("PartDesign::Pad", "Pad008")
body.addObject(pad9)
pad9.Profile = sketch12
pad9.Length = 20

# Sketch on XZ plane
sketch13 = doc.addObject("Sketcher::SketchObject", "Sketch012")
body.addObject(sketch13)
sketch13.AttachmentSupport = (doc.XZ_Plane, [""])
sketch13.MapMode = "FlatFace"
sketch13.AttachmentOffset = App.Placement(V(0, 0, 37.5), App.Rotation())
sketch13.addGeometry([
    Part.Circle(V(28.5, -43.8, 0), V(0, 0, 1), 2.1),
    Part.Circle(V(18.5, -43.8, 0), V(0, 0, 1), 2.1),
    Part.Circle(V(28.5, 5.8, 0), V(0, 0, 1), 2.1),
    Part.Circle(V(18.5, 5.8, 0), V(0, 0, 1), 2.1),
], False)
sketch13.addConstraint([
    Sketcher.Constraint("Equal", 0, 1),
    Sketcher.Constraint("Equal", 1, 2),
    Sketcher.Constraint("Equal", 2, 3),
    Sketcher.Constraint("Horizontal", 0, 3, 1, 3),
    Sketcher.Constraint("Horizontal", 2, 3, 3, 3),
    Sketcher.Constraint("Vertical", 0, 3, 2, 3),
    Sketcher.Constraint("Vertical", 1, 3, 3, 3),
    Sketcher.Constraint("Diameter", 0, Q("4.2 mm")),
    Sketcher.Constraint("DistanceX", 1, 3, 0, 3, Q("10 mm")),
    Sketcher.Constraint("DistanceX", -1, 1, 0, 3, Q("28.5 mm")),
    Sketcher.Constraint("DistanceY", 0, 3, 2, 3, Q("49.5 mm")),
    Sketcher.Constraint("DistanceY", 0, 3, -1, 1, Q("43.75 mm")),
])
pocket4 = doc.addObject("PartDesign::Pocket", "Pocket003")
body.addObject(pocket4)
pocket4.Profile = sketch13
pocket4.Length = 8

# Sketch on YZ plane
sketch14 = doc.addObject("Sketcher::SketchObject", "Sketch013")
body.addObject(sketch14)
sketch14.AttachmentSupport = (doc.YZ_Plane, [""])
sketch14.MapMode = "FlatFace"
sketch14.AttachmentOffset = App.Placement(V(0, 0, -19.5), App.Rotation())
sketch14.addGeometry([
    Part.LineSegment(V(16, -48, 0), V(10, -48, 0)),
    Part.LineSegment(V(10, -48, 0), V(10, 10, 0)),
    Part.LineSegment(V(10, 10, 0), V(16, 10, 0)),
    Part.LineSegment(V(16, 10, 0), V(16, -48, 0)),
], False)
sketch14.addConstraint([
    Sketcher.Constraint("Coincident", 0, 2, 1, 1),
    Sketcher.Constraint("Coincident", 1, 2, 2, 1),
    Sketcher.Constraint("Coincident", 2, 2, 3, 1),
    Sketcher.Constraint("Coincident", 3, 2, 0, 1),
    Sketcher.Constraint("Horizontal", 0),
    Sketcher.Constraint("Vertical", 1),
    Sketcher.Constraint("Horizontal", 2),
    Sketcher.Constraint("Vertical", 3),
    Sketcher.Constraint("DistanceX", 0, 2, 0, 1, Q("5 mm")),
    Sketcher.Constraint("DistanceY", 1, 1, 1, 2, Q("58 mm")),
    Sketcher.Constraint("DistanceY", 0, 2, -1, 1, Q("48 mm")),
    Sketcher.Constraint("DistanceX", -1, 1, 0, 2, Q("10.5 mm")),
])
pad10 = doc.addObject("PartDesign::Pad", "Pad009")
body.addObject(pad10)
pad10.Profile = sketch14
pad10.Length = 50
pad10.Reversed = True

# Sketch on XY plane
sketch15 = doc.addObject("Sketcher::SketchObject", "Sketch014")
body.addObject(sketch15)
sketch15.AttachmentSupport = (doc.XY_Plane, [""])
sketch15.MapMode = "FlatFace"
sketch15.AttachmentOffset = App.Placement(V(0, 0, 10), App.Rotation())
sketch15.addGeometry(Part.Circle(V(0, 0, 0), V(0, 0, 1), 2.1), False)
sketch15.addConstraint([
    Sketcher.Constraint("Coincident", 0, 3, -1, 1),
    Sketcher.Constraint("Diameter", 0, Q("4.2 mm")),
])
pocket5 = doc.addObject("PartDesign::Pocket", "Pocket004")
body.addObject(pocket5)
pocket5.Profile = sketch15
pocket5.Length = 10

# Sketch on XZ plane
sketch16 = doc.addObject("Sketcher::SketchObject", "Sketch015")
body.addObject(sketch16)
sketch16.AttachmentSupport = (doc.XZ_Plane, [""])
sketch16.MapMode = "FlatFace"
sketch16.AttachmentOffset = App.Placement(V(0, 0, -37.5), App.Rotation())
sketch16.addGeometry([
    Part.Circle(V(28.5, 5.8, 0), V(0, 0, 1), 2.1),
    Part.Circle(V(18.5, 5.8, 0), V(0, 0, 1), 2.1),
    Part.Circle(V(18.5, -43.8, 0), V(0, 0, 1), 2.1),
    Part.Circle(V(28.5, -43.8, 0), V(0, 0, 1), 2.1),
], False)
sketch16.addConstraint([
    Sketcher.Constraint("Equal", 0, 1),
    Sketcher.Constraint("Equal", 1, 2),
    Sketcher.Constraint("Equal", 2, 3),
    Sketcher.Constraint("Horizontal", 0, 3, 1, 3),
    Sketcher.Constraint("Horizontal", 2, 3, 3, 3),
    Sketcher.Constraint("Vertical", 1, 3, 2, 3),
    Sketcher.Constraint("Vertical", 0, 3, 3, 3),
    Sketcher.Constraint("Diameter", 0, Q("4.2 mm")),
    Sketcher.Constraint("DistanceX", 1, 3, 0, 3, Q("10 mm")),
    Sketcher.Constraint("DistanceX", -1, 1, 0, 3, Q("28.5 mm")),
    Sketcher.Constraint("DistanceY", 2, 3, 1, 3, Q("49.5 mm")),
    Sketcher.Constraint("DistanceY", -1, 1, 0, 3, Q("5.75 mm")),
])
pocket6 = doc.addObject("PartDesign::Pocket", "Pocket005")
body.addObject(pocket6)
pocket6.Profile = sketch16
pocket6.Length = 8
pocket6.Reversed = True

# Sketch on XZ plane
sketch17 = doc.addObject("Sketcher::SketchObject", "Sketch016")
body.addObject(sketch17)
sketch17.AttachmentSupport = (doc.XZ_Plane, [""])
sketch17.MapMode = "FlatFace"
sketch17.AttachmentOffset = App.Placement(V(0, 0, 21.5), App.Rotation())
sketch17.addGeometry([
    Part.Circle(V(28.5, 5.8, 0), V(0, 0, 1), 1.6),
    Part.Circle(V(18.5, 5.8, 0), V(0, 0, 1), 1.6),
    Part.Circle(V(28.5, -43.8, 0), V(0, 0, 1), 1.6),
    Part.Circle(V(18.5, -43.8, 0), V(0, 0, 1), 1.6),
], False)
sketch17.addConstraint([
    Sketcher.Constraint("Equal", 0, 1),
    Sketcher.Constraint("Equal", 1, 2),
    Sketcher.Constraint("Equal", 2, 3),
    Sketcher.Constraint("Horizontal", 0, 3, 1, 3),
    Sketcher.Constraint("Horizontal", 2, 3, 3, 3),
    Sketcher.Constraint("Vertical", 0, 3, 2, 3),
    Sketcher.Constraint("Vertical", 1, 3, 3, 3),
    Sketcher.Constraint("Diameter", 0, Q("3.2 mm")),
    Sketcher.Constraint("DistanceX", 1, 3, 0, 3, Q("10 mm")),
    Sketcher.Constraint("DistanceX", -1, 1, 0, 3, Q("28.5 mm")),
    Sketcher.Constraint("DistanceY", 2, 3, 0, 3, Q("49.5 mm")),
    Sketcher.Constraint("DistanceY", -1, 1, 0, 3, Q("5.75 mm")),
])
pocket7 = doc.addObject("PartDesign::Pocket", "Pocket006")
body.addObject(pocket7)
pocket7.Profile = sketch17
pocket7.Length = 8
pocket7.Reversed = True

# Sketch on XZ plane
sketch18 = doc.addObject("Sketcher::SketchObject", "Sketch017")
body.addObject(sketch18)
sketch18.AttachmentSupport = (doc.XZ_Plane, [""])
sketch18.MapMode = "FlatFace"
sketch18.AttachmentOffset = App.Placement(V(0, 0, -21.5), App.Rotation())
sketch18.addGeometry([
    Part.Circle(V(18.5, -43.8, 0), V(0, 0, 1), 1.6),
    Part.Circle(V(28.5, -43.8, 0), V(0, 0, 1), 1.6),
    Part.Circle(V(18.5, 5.8, 0), V(0, 0, 1), 1.6),
    Part.Circle(V(28.5, 5.8, 0), V(0, 0, 1), 1.6),
], False)
sketch18.addConstraint([
    Sketcher.Constraint("Equal", 0, 1),
    Sketcher.Constraint("Equal", 1, 2),
    Sketcher.Constraint("Equal", 2, 3),
    Sketcher.Constraint("Horizontal", 0, 3, 1, 3),
    Sketcher.Constraint("Horizontal", 2, 3, 3, 3),
    Sketcher.Constraint("Vertical", 0, 3, 2, 3),
    Sketcher.Constraint("Vertical", 1, 3, 3, 3),
    Sketcher.Constraint("Diameter", 0, Q("3.2 mm")),
    Sketcher.Constraint("DistanceX", 0, 3, 1, 3, Q("10 mm")),
    Sketcher.Constraint("DistanceX", -1, 1, 0, 3, Q("18.5 mm")),
    Sketcher.Constraint("DistanceY", 0, 3, 2, 3, Q("49.5 mm")),
    Sketcher.Constraint("DistanceY", 0, 3, -1, 1, Q("43.75 mm")),
])
pocket8 = doc.addObject("PartDesign::Pocket", "Pocket007")
body.addObject(pocket8)
pocket8.Profile = sketch18
pocket8.Length = 8

# Sketch on XZ plane
sketch19 = doc.addObject("Sketcher::SketchObject", "Sketch018")
body.addObject(sketch19)
sketch19.AttachmentSupport = (doc.XZ_Plane, [""])
sketch19.MapMode = "FlatFace"
sketch19.AttachmentOffset = App.Placement(V(0, 0, -10.5), App.Rotation())
sketch19.addGeometry([
    Part.LineSegment(V(-57.5, 6, 0), V(-57.5, 10, 0)),  # 0
    Part.LineSegment(V(-57.5, 10, 0), V(-69.5, 10, 0)),  # 1
    Part.LineSegment(V(-69.5, 10, 0), V(-69.5, 6, 0)),  # 2
    Part.LineSegment(V(-69.5, 6, 0), V(-57.5, 6, 0)),  # 3
    Part.LineSegment(V(-57.5, -17, 0), V(-69.5, -17, 0)),  # 4
    Part.LineSegment(V(-69.5, -17, 0), V(-69.5, -21, 0)),  # 5
    Part.LineSegment(V(-69.5, -21, 0), V(-57.5, -21, 0)),  # 6
    Part.LineSegment(V(-57.5, -21, 0), V(-57.5, -17, 0)),  # 7
    Part.LineSegment(V(-57.5, -48, 0), V(-57.5, -44, 0)),  # 8
    Part.LineSegment(V(-57.5, -44, 0), V(-69.5, -44, 0)),  # 9
    Part.LineSegment(V(-69.5, -44, 0), V(-69.5, -48, 0)),  # 10
    Part.LineSegment(V(-69.5, -48, 0), V(-57.5, -48, 0)),  # 11
], False)
sketch19.addConstraint([
    Sketcher.Constraint("Coincident", 0, 2, 1, 1),
    Sketcher.Constraint("Coincident", 1, 2, 2, 1),
    Sketcher.Constraint("Coincident", 2, 2, 3, 1),
    Sketcher.Constraint("Coincident", 3, 2, 0, 1),
    Sketcher.Constraint("Coincident", 4, 2, 5, 1),
    Sketcher.Constraint("Coincident", 5, 2, 6, 1),
    Sketcher.Constraint("Coincident", 6, 2, 7, 1),
    Sketcher.Constraint("Coincident", 7, 2, 4, 1),
    Sketcher.Constraint("Coincident", 8, 2, 9, 1),
    Sketcher.Constraint("Coincident", 9, 2, 10, 1),
    Sketcher.Constraint("Coincident", 10, 2, 11, 1),
    Sketcher.Constraint("Coincident", 11, 2, 8, 1),
    Sketcher.Constraint("Vertical", 0),
    Sketcher.Constraint("Horizontal", 1),
    Sketcher.Constraint("Vertical", 2),
    Sketcher.Constraint("Horizontal", 3),
    Sketcher.Constraint("Horizontal", 4),
    Sketcher.Constraint("Vertical", 5),
    Sketcher.Constraint("Horizontal", 6),
    Sketcher.Constraint("Vertical", 7),
    Sketcher.Constraint("Vertical", 8),
    Sketcher.Constraint("Horizontal", 9),
    Sketcher.Constraint("Vertical", 10),
    Sketcher.Constraint("Horizontal", 11),
    Sketcher.Constraint("Vertical", 2, 2, 4, 2),
    Sketcher.Constraint("Vertical", 3, 2, 6, 2),
    Sketcher.Constraint("Vertical", 7, 2, 8, 2),
    Sketcher.Constraint("Vertical", 5, 2, 9, 2),
    Sketcher.Constraint("Equal", 2, 5),
    Sketcher.Constraint("Equal", 7, 8),
    Sketcher.Constraint("DistanceX", 1, 2, 1, 1, Q("12 mm")),
    Sketcher.Constraint("DistanceY", 0, 1, 0, 2, Q("4 mm")),
    Sketcher.Constraint("DistanceY", -1, 1, 0, 2, Q("10 mm")),
    Sketcher.Constraint("DistanceY", 4, 2, -1, 1, Q("17 mm")),
    Sketcher.Constraint("DistanceY", 8, 2, -1, 1, Q("44 mm")),
    Sketcher.Constraint("DistanceX", 0, 2, -1, 1, Q("57.5 mm")),
])
pad11 = doc.addObject("PartDesign::Pad", "Pad010")
body.addObject(pad11)
pad11.Profile = sketch19
pad11.Length = 9

# Sketch on XY plane
sketch20 = doc.addObject("Sketcher::SketchObject", "Sketch019")
body.addObject(sketch20)
sketch20.AttachmentSupport = (doc.XY_Plane, [""])
sketch20.MapMode = "FlatFace"
sketch20.AttachmentOffset = App.Placement(V(0, 0, 10), App.Rotation())
sketch20.addGeometry([
    Part.ArcOfCircle(Part.Circle(V(-63.5, 7.5, 0), V(0, 0, 1), 6), math.radians(180), math.radians(270)),  # 0
    Part.LineSegment(V(-69.5, 7.5, 0), V(-69.5, 1.5, 0)),  # 1
    Part.LineSegment(V(-69.5, 1.5, 0), V(-63.5, 1.5, 0)),  # 2
    Part.Circle(V(-63.5, 7.5, 0), V(0, 0, 1), 3),  # 3
    Part.ArcOfCircle(Part.Circle(V(-63.5, 7.5, 0), V(0, 0, 1), 6), math.radians(-90), math.radians(0)),  # 4
    Part.LineSegment(V(-63.5, 1.5, 0), V(-57.5, 1.5, 0)),  # 5
    Part.LineSegment(V(-57.5, 1.5, 0), V(-57.5, 7.5, 0)),  # 6
], False)
sketch20.addConstraint([
    Sketcher.Constraint("Tangent", 0, 1, 1, 1),
    Sketcher.Constraint("Coincident", 1, 2, 2, 1),
    Sketcher.Constraint("Tangent", 2, 2, 0, 2),
    Sketcher.Constraint("Tangent", 4, 1, 5, 1),
    Sketcher.Constraint("Coincident", 5, 2, 6, 1),
    Sketcher.Constraint("Tangent", 6, 2, 4, 2),
    Sketcher.Constraint("Vertical", 1),
    Sketcher.Constraint("Horizontal", 2),
    Sketcher.Constraint("Horizontal", 5),
    Sketcher.Constraint("Vertical", 6),
    Sketcher.Constraint("Coincident", 3, 3, 0, 3),
    Sketcher.Constraint("Coincident", 4, 3, 0, 3),
    Sketcher.Constraint("Equal", 0, 4),
    Sketcher.Constraint("Diameter", 3, Q("6 mm")),
    Sketcher.Constraint("Radius", 0, Q("6 mm")),
    Sketcher.Constraint("DistanceX", 0, 3, -1, 1, Q("63.5 mm")),
    Sketcher.Constraint("DistanceY", -1, 1, 0, 3, Q("7.5 mm")),
])
pocket9 = doc.addObject("PartDesign::Pocket", "Pocket008")
body.addObject(pocket9)
pocket9.Profile = sketch20
pocket9.Length = 80

doc.recompute()
